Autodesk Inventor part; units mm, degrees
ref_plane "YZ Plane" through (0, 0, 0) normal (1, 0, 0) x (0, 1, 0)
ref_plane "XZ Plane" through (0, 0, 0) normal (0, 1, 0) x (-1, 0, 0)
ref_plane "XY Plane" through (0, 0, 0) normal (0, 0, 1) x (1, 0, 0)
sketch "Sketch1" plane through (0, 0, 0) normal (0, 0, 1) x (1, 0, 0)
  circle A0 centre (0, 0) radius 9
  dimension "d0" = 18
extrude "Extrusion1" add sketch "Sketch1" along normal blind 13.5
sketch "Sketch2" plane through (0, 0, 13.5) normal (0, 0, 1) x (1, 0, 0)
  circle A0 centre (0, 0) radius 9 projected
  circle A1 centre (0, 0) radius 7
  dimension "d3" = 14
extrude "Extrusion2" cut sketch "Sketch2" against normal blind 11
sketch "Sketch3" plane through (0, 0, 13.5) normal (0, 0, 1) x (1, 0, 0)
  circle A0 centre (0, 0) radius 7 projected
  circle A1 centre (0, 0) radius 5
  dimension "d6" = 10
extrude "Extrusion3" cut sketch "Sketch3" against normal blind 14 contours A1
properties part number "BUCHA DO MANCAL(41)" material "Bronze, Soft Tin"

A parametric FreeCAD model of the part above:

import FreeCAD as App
import Part
import Sketcher

doc = App.newDocument("Part")
params = doc.addObject("Spreadsheet::Sheet", "Params")
for row, (alias, value) in enumerate([
    ("sketch1_diameter", "18 mm"),
    ("pad1_length", "13.5 mm"),
    ("sketch2_diameter", "14 mm"),
    ("sketch2_diameter2", "18 mm"),
    ("pocket1_length", "11 mm"),
    ("sketch3_diameter", "10 mm"),
    ("pocket2_length", "14 mm"),
], start=1):
    params.set(f"A{row}", alias)
    params.set(f"B{row}", "=" + value)
    params.setAlias(f"B{row}", alias)

body = doc.addObject("PartDesign::Body", "Body")

sketch1 = doc.addObject("Sketcher::SketchObject", "Sketch")
body.addObject(sketch1)
sketch1.AttachmentSupport = (doc.XY_Plane, [""])
sketch1.MapMode = "FlatFace"
sketch1.addGeometry(Part.Circle(App.Vector(0, 0, 0), App.Vector(0, 0, 1), 9), False)
sketch1.addConstraint([
    Sketcher.Constraint("Coincident", 0, 3, -1, 1),
    Sketcher.Constraint("Diameter", 0, 18.0),
])
sketch1.setExpression("Constraints[1]", "Params.sketch1_diameter")
pad1 = doc.addObject("PartDesign::Pad", "Pad")
body.addObject(pad1)
pad1.Profile = sketch1
pad1.setExpression("Length", "Params.pad1_length")

sketch2 = doc.addObject("Sketcher::SketchObject", "Sketch001")
body.addObject(sketch2)
sketch2.AttachmentSupport = (doc.XY_Plane, [""])
sketch2.MapMode = "FlatFace"
sketch2.AttachmentOffset = App.Placement(App.Vector(0, 0, 13.5), App.Rotation())
sketch2.addGeometry([
    Part.Circle(App.Vector(0, 0, 0), App.Vector(0, 0, 1), 9),
    Part.Circle(App.Vector(0, 0, 0), App.Vector(0, 0, 1), 7),
], False)
sketch2.addConstraint([
    Sketcher.Constraint("Coincident", 0, 3, -1, 1),
    Sketcher.Constraint("Coincident", 1, 3, -1, 1),
    Sketcher.Constraint("Diameter", 1, 14.0),
    Sketcher.Constraint("Diameter", 0, 18.0),
])
sketch2.setExpression("Constraints[2]", "Params.sketch2_diameter")
sketch2.setExpression("Constraints[3]", "Params.sketch2_diameter2")
pocket1 = doc.addObject("PartDesign::Pocket", "Pocket")
body.addObject(pocket1)
pocket1.Profile = sketch2
pocket1.setExpression("Length", "Params.pocket1_length")

sketch3 = doc.addObject("Sketcher::SketchObject", "Sketch002")
body.addObject(sketch3)
sketch3.AttachmentSupport = (doc.XY_Plane, [""])
sketch3.MapMode = "FlatFace"
sketch3.AttachmentOffset = App.Placement(App.Vector(0, 0, 13.5), App.Rotation())
sketch3.addGeometry(Part.Circle(App.Vector(0, 0, 0), App.Vector(0, 0, 1), 5), False)
sketch3.addConstraint([
    Sketcher.Constraint("Coincident", 0, 3, -1, 1),
    Sketcher.Constraint("Diameter", 0, 10.0),
])
sketch3.setExpression("Constraints[1]", "Params.sketch3_diameter")
pocket2 = doc.addObject("PartDesign::Pocket", "Pocket001")
body.addObject(pocket2)
pocket2.Profile = sketch3
pocket2.setExpression("Length", "Params.pocket2_length")

doc.recompute()
